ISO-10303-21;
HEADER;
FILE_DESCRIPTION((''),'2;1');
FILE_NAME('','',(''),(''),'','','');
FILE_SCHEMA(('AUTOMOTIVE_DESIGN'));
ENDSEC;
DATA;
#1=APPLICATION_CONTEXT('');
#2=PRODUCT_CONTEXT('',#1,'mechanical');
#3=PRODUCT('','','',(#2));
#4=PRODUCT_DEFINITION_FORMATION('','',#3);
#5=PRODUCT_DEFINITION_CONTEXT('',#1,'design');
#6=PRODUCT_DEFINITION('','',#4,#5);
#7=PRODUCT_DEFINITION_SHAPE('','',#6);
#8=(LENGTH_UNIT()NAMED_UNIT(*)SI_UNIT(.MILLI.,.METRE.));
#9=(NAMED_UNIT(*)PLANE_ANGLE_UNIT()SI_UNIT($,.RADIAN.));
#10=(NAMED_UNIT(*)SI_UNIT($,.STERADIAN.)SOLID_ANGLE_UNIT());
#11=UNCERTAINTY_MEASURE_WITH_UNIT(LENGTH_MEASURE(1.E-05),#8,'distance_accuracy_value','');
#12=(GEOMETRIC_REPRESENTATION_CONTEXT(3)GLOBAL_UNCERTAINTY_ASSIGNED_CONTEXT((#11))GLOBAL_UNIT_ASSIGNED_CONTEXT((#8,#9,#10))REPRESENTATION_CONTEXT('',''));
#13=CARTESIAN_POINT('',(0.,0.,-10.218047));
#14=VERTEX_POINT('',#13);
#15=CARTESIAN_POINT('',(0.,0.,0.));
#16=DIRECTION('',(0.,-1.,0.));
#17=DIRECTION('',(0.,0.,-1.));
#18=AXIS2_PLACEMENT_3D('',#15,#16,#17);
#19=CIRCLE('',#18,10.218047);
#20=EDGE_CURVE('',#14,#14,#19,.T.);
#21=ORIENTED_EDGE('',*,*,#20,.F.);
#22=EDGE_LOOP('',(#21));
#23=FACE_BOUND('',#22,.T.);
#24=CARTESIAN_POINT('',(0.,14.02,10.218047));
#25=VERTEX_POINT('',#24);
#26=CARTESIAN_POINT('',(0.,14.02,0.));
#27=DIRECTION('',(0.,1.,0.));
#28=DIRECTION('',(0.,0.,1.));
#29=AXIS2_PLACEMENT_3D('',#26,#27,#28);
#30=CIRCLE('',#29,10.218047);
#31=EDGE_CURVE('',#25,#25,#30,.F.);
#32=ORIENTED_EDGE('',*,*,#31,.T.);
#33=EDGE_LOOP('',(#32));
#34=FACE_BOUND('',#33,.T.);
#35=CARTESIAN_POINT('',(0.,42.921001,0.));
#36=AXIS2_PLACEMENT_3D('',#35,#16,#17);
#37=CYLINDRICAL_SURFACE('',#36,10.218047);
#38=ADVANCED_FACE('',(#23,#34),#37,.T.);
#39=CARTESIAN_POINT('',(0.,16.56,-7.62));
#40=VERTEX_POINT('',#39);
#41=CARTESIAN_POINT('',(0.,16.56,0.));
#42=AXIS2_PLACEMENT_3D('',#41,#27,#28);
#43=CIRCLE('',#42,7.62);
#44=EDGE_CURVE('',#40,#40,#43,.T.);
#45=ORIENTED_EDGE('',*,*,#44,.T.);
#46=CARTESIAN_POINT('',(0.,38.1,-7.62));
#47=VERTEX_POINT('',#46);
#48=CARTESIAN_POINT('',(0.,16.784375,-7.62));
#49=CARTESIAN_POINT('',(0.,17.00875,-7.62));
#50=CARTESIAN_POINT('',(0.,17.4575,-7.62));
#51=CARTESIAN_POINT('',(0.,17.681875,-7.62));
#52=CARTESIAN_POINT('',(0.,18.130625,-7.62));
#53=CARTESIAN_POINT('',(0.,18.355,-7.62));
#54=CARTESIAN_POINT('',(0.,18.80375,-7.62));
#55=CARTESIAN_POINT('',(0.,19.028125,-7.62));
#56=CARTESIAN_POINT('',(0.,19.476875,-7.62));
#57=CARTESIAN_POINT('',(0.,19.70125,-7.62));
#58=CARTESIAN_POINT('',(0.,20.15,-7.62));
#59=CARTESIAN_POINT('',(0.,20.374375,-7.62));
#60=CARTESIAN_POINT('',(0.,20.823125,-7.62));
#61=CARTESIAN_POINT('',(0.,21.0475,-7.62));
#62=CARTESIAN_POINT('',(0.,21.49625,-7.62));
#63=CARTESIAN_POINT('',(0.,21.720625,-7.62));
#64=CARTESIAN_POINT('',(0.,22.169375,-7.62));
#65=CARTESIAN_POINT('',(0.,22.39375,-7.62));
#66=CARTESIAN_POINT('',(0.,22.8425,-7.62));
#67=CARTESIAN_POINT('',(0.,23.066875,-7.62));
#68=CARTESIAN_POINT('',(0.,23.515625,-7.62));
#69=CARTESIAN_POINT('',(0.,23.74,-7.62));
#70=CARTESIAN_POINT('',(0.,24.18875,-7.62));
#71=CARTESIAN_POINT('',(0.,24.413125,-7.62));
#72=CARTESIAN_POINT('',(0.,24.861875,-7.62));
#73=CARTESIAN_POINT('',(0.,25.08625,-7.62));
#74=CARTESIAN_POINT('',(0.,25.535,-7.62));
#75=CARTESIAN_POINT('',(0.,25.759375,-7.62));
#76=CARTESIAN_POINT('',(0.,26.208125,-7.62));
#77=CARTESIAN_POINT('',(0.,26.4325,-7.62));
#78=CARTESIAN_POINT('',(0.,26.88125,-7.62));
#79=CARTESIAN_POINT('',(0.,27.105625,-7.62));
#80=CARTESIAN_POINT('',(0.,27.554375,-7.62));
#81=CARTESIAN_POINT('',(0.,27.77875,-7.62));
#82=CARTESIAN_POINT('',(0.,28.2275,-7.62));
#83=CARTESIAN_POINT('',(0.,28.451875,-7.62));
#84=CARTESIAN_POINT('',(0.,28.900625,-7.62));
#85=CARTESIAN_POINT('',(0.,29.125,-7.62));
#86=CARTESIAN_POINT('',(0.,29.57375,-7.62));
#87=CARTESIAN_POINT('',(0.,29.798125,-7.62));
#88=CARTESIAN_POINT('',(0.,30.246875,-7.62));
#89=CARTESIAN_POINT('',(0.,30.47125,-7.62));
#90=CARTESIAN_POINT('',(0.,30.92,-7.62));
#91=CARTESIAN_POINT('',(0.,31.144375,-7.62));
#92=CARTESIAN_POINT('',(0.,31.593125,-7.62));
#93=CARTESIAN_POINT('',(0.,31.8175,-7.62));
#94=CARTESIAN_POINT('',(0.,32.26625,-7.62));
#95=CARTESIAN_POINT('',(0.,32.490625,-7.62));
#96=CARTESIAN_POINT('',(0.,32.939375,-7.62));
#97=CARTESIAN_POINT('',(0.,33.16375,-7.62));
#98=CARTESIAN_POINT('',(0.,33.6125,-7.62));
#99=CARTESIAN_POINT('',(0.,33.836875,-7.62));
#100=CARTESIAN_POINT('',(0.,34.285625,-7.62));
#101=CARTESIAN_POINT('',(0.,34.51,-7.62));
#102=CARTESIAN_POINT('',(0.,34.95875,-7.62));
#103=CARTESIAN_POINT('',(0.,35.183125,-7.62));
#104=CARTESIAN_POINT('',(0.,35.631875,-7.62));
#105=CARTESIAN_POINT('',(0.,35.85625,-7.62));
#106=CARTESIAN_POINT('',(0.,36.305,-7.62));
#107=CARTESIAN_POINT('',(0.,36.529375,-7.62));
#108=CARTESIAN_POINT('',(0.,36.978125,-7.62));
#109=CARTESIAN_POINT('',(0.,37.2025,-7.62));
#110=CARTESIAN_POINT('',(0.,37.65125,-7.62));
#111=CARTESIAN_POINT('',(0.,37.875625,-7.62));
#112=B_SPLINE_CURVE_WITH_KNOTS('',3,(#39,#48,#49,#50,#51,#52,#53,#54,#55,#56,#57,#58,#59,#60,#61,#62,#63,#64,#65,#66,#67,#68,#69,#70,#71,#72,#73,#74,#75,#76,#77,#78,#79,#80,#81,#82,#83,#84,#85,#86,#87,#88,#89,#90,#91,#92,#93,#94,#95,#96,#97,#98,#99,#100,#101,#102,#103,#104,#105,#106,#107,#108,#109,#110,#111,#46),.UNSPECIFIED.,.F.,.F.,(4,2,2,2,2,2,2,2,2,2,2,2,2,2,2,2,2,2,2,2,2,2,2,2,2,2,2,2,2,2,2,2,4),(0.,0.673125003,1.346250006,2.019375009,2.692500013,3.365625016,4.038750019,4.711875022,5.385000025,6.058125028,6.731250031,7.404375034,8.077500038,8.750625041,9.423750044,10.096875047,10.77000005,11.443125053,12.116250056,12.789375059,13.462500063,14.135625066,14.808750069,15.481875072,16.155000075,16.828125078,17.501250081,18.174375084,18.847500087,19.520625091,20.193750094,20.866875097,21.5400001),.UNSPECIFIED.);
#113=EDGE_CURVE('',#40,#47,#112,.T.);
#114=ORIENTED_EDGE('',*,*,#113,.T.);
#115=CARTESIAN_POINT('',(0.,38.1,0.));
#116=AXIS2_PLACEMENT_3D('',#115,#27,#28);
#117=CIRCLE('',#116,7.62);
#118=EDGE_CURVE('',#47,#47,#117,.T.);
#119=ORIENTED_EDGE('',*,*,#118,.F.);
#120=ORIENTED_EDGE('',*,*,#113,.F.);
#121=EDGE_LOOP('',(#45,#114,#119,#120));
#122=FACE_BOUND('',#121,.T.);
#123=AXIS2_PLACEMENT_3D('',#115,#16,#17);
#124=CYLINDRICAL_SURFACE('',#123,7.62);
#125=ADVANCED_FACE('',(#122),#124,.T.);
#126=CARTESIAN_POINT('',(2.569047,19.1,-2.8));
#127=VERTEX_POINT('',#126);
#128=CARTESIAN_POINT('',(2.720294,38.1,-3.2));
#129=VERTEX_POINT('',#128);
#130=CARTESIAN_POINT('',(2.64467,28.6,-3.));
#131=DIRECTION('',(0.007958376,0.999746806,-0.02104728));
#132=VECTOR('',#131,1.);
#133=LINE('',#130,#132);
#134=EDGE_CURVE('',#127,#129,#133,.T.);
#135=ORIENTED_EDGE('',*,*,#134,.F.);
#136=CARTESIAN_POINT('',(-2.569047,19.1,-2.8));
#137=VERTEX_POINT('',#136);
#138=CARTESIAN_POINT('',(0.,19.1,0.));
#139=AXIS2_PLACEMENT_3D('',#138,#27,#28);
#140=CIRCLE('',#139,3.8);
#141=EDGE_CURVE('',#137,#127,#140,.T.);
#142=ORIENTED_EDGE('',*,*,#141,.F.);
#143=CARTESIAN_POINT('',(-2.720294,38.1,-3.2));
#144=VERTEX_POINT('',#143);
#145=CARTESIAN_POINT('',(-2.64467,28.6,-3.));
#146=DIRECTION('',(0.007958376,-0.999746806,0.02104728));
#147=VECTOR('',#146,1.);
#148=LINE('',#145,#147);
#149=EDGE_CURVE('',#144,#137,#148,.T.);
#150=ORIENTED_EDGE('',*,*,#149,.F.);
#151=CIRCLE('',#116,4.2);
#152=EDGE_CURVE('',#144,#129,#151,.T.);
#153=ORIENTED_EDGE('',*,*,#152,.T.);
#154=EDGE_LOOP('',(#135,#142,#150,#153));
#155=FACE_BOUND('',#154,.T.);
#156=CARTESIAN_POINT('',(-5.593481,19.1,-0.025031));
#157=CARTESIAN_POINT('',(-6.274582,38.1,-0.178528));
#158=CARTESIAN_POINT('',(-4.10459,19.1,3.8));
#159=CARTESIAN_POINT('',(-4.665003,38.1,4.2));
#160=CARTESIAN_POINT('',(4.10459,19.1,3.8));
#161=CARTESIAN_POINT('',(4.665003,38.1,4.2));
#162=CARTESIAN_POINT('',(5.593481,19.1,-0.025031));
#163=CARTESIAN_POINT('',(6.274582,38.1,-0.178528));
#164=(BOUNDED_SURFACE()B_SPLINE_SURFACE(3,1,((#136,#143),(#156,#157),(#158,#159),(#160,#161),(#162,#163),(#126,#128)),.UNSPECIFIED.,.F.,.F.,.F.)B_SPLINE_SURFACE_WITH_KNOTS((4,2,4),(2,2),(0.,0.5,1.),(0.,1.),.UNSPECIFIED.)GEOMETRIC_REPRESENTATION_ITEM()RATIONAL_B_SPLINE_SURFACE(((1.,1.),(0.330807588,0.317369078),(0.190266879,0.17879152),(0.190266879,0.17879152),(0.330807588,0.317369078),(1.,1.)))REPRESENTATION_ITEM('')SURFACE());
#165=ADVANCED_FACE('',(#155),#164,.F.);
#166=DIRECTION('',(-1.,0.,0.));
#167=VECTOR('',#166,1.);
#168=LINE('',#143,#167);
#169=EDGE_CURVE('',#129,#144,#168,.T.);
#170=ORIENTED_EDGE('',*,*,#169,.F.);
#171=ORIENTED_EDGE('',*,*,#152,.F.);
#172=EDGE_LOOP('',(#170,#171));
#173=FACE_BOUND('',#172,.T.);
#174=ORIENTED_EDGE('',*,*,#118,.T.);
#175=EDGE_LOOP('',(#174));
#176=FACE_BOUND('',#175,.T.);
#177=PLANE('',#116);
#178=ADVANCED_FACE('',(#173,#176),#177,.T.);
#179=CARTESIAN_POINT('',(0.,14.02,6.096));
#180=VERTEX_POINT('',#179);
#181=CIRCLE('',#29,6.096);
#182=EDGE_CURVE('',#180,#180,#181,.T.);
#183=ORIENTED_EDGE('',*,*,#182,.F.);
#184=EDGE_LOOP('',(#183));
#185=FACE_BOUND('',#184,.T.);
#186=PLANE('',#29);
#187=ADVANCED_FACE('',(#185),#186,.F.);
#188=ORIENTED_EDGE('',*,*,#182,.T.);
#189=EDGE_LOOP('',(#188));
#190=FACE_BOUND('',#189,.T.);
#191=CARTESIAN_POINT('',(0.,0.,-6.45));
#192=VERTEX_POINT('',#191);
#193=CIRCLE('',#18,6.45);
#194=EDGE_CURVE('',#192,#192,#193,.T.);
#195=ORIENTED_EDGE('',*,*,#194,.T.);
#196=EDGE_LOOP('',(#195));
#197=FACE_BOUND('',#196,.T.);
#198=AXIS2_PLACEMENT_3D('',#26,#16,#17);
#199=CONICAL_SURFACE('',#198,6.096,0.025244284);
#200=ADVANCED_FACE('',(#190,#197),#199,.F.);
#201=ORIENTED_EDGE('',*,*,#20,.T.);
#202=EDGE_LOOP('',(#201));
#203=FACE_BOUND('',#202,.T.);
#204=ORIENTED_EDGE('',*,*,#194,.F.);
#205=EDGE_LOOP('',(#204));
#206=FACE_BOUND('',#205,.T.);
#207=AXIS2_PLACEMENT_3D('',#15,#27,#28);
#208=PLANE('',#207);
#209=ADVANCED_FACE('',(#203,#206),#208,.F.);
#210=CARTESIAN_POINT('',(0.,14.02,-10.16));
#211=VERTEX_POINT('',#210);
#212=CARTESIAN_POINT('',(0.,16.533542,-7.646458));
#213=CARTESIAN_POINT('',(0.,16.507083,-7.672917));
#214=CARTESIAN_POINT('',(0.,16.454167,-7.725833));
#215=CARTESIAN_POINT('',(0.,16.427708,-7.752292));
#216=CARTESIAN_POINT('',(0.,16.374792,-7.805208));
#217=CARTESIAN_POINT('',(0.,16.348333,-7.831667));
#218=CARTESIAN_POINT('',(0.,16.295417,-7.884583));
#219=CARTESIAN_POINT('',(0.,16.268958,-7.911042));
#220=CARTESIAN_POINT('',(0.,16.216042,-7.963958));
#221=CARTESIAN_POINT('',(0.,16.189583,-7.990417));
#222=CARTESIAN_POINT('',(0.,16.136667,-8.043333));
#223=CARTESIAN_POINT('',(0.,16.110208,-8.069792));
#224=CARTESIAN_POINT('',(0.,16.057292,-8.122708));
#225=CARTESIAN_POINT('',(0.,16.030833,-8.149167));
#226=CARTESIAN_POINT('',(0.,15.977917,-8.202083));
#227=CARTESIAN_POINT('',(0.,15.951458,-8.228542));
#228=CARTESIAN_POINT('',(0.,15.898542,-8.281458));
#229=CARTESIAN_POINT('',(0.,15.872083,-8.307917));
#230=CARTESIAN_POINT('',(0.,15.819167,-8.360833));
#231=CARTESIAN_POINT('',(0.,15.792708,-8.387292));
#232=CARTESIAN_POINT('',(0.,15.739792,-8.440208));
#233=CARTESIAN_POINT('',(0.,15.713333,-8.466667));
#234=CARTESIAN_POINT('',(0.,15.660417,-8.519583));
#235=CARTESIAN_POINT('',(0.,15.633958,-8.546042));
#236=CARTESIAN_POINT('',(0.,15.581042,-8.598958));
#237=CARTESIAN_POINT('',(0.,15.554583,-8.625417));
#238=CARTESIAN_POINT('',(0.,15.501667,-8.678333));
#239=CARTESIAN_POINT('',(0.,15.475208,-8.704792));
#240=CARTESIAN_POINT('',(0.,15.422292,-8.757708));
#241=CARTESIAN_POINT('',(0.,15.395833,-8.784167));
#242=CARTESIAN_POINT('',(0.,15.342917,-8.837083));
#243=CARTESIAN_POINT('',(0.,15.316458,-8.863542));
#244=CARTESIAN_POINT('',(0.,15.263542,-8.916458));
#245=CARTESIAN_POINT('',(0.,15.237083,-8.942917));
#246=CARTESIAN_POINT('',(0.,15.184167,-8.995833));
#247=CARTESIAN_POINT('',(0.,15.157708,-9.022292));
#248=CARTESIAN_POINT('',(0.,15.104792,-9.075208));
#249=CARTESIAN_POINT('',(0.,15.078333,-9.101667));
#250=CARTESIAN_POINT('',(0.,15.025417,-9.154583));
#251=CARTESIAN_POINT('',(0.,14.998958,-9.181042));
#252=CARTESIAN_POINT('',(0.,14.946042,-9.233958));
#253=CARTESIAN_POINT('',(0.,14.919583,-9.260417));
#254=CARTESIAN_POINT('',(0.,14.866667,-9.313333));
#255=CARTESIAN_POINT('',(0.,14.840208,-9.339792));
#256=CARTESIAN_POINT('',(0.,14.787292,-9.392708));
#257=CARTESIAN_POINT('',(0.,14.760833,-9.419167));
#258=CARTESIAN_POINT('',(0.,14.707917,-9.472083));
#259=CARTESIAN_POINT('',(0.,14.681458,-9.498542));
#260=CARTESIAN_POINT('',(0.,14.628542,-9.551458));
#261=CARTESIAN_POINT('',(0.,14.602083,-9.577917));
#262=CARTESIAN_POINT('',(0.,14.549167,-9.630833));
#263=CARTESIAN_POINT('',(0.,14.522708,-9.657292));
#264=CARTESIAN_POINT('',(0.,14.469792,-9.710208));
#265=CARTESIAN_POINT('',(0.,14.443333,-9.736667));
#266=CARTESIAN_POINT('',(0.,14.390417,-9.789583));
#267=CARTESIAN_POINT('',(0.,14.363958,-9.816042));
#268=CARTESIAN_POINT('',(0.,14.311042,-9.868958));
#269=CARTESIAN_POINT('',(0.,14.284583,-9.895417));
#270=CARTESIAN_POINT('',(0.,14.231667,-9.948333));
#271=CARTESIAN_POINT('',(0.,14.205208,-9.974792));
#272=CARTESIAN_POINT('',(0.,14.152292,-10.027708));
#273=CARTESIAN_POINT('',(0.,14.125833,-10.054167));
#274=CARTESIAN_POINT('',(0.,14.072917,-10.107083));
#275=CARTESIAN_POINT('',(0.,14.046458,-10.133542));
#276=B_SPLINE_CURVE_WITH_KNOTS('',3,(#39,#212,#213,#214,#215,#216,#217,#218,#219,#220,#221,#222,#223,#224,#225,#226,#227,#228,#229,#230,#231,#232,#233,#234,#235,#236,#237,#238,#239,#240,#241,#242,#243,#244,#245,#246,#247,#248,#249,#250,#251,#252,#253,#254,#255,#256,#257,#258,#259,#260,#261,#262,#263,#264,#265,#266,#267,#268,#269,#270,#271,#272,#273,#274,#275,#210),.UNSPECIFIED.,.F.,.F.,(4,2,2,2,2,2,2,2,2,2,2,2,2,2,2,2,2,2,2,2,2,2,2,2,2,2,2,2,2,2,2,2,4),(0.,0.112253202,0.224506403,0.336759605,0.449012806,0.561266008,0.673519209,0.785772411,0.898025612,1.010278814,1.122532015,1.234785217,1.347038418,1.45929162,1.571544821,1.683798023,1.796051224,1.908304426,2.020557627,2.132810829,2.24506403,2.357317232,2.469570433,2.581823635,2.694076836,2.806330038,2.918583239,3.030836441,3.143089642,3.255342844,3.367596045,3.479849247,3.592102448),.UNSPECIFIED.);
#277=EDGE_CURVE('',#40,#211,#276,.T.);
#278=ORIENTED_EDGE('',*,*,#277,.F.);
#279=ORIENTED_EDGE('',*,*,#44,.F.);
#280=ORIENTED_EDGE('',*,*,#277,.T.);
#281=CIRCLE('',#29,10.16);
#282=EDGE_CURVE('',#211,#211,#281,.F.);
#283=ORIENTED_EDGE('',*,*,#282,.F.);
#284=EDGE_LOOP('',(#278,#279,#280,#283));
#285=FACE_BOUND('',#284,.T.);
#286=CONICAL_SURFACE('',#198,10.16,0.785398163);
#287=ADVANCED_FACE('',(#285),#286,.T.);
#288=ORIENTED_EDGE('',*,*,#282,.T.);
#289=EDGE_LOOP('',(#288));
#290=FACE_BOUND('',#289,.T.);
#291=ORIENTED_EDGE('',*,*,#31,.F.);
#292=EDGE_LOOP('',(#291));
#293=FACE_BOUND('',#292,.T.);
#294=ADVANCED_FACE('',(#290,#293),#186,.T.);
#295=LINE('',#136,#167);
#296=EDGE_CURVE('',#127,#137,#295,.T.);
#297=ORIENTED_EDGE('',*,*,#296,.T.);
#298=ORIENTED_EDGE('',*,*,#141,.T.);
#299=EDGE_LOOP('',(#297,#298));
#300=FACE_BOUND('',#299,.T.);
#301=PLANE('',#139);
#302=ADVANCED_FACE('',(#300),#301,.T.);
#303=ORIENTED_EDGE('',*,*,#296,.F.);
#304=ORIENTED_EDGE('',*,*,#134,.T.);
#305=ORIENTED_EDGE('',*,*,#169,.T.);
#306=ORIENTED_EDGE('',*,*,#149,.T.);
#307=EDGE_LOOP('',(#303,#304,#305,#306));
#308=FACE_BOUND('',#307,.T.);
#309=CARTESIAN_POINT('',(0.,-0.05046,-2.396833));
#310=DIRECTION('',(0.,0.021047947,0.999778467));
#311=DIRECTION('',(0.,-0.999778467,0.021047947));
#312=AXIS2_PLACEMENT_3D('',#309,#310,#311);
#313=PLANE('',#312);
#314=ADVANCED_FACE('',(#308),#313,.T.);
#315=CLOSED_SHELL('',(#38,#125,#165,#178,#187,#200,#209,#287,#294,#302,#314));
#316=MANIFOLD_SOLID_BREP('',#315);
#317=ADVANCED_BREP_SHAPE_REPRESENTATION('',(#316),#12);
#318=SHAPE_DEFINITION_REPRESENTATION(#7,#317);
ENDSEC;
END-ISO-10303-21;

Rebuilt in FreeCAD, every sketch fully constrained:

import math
import FreeCAD as App
import Part
import Sketcher
from FreeCAD import Vector
Q = App.Units.Quantity


def edges_at(feature, points):
    """Names of the edges that pass closest to the given points."""
    edges = feature.Shape.Edges
    near = lambda p: min(range(len(edges)), key=lambda i: edges[i].distToShape(Part.Vertex(*p))[0])
    return sorted({f"Edge{near(p) + 1}" for p in points})

doc = App.newDocument("Part")
body = doc.addObject("PartDesign::Body", "Body")

sketch1 = body.newObject("Sketcher::SketchObject", "Sketch")
sketch1.AttachmentSupport = (doc.getObject("XZ_Plane"), [""])
sketch1.MapMode = "FlatFace"
sketch1.addGeometry(Part.Circle(Vector(0, 0, 0), Vector(0, 0, 1), 8), False)
sketch1.addConstraint([
    Sketcher.Constraint("Coincident", 0, 3, -1, 1),
    Sketcher.Constraint("Diameter", 0, Q("0.6 in")),
])
pad1 = body.newObject("PartDesign::Pad", "Pad")
pad1.Profile = sketch1
pad1.Length = Q("1.5 in")
pad1.Reversed = True

sketch2 = body.newObject("Sketcher::SketchObject", "Sketch001")
sketch2.AttachmentSupport = (doc.getObject("XZ_Plane"), [""])
sketch2.MapMode = "FlatFace"
sketch2.AttachmentOffset = App.Placement(Vector(0, 0, -19.1), App.Rotation())
sketch2.addGeometry([
    Part.LineSegment(Vector(2.6, -2.8, 0), Vector(-2.6, -2.8, 0)),
    Part.ArcOfCircle(Part.Circle(Vector(0, 0, 0), Vector(0, 0, 1), 3.8), math.radians(-47), math.radians(227)),
], False)
sketch2.addConstraint([
    Sketcher.Constraint("Coincident", 0, 1, 1, 1),
    Sketcher.Constraint("Coincident", 1, 2, 0, 2),
    Sketcher.Constraint("Horizontal", 0),
    Sketcher.Constraint("Coincident", 1, 3, -1, 1),
    Sketcher.Constraint("Radius", 1, 3.8),
    Sketcher.Constraint("DistanceY", 0, 1, -1, 1, 2.8),
])

sketch3 = body.newObject("Sketcher::SketchObject", "Sketch002")
sketch3.AttachmentSupport = (doc.getObject("XZ_Plane"), [""])
sketch3.MapMode = "FlatFace"
sketch3.AttachmentOffset = App.Placement(Vector(0, 0, -1.5 * 25.4), App.Rotation())
sketch3.addGeometry([
    Part.LineSegment(Vector(2.7, -3.2, 0), Vector(-2.7, -3.2, 0)),
    Part.ArcOfCircle(Part.Circle(Vector(0, 0, 0), Vector(0, 0, 1), 4.2), math.radians(-50), math.radians(230)),
], False)
sketch3.addConstraint([
    Sketcher.Constraint("Coincident", 0, 1, 1, 1),
    Sketcher.Constraint("Coincident", 1, 2, 0, 2),
    Sketcher.Constraint("Horizontal", 0),
    Sketcher.Constraint("Coincident", 1, 3, -1, 1),
    Sketcher.Constraint("Radius", 1, 4.2),
    Sketcher.Constraint("DistanceY", 0, 1, -1, 1, 3.2),
])

subtractiveloft = body.newObject("PartDesign::SubtractiveLoft", "SubtractiveLoft")
subtractiveloft.Profile = sketch2
subtractiveloft.Sections = [sketch3]

sketch4 = body.newObject("Sketcher::SketchObject", "Sketch003")
sketch4.AttachmentSupport = (doc.getObject("XZ_Plane"), [""])
sketch4.MapMode = "FlatFace"
sketch4.AttachmentOffset = App.Placement(Vector(0, 0, -14.02), App.Rotation())
sketch4.addGeometry(Part.Circle(Vector(0, 0, 0), Vector(0, 0, 1), 6), False)
sketch4.addConstraint([
    Sketcher.Constraint("Coincident", 0, 3, -1, 1),
    Sketcher.Constraint("Diameter", 0, Q("0.48 in")),
])

sketch5 = body.newObject("Sketcher::SketchObject", "Sketch004")
sketch5.AttachmentSupport = (doc.getObject("XZ_Plane"), [""])
sketch5.MapMode = "FlatFace"
sketch5.addGeometry(Part.Circle(Vector(0, 0, 0), Vector(0, 0, 1), 6), False)
sketch5.addConstraint([
    Sketcher.Constraint("Coincident", 0, 3, -1, 1),
    Sketcher.Constraint("Diameter", 0, 12.9),
])

subtractiveloft2 = body.newObject("PartDesign::SubtractiveLoft", "SubtractiveLoft001")
subtractiveloft2.Profile = sketch4
subtractiveloft2.Sections = [sketch5]

sketch6 = body.newObject("Sketcher::SketchObject", "Sketch005")
sketch6.AttachmentSupport = (doc.getObject("XZ_Plane"), [""])
sketch6.MapMode = "FlatFace"
sketch6.addGeometry([
    Part.Circle(Vector(0, 0, 0), Vector(0, 0, 1), 10),
    Part.Circle(Vector(0, 0, 0), Vector(0, 0, 1), 8),
], False)
sketch6.addConstraint([
    Sketcher.Constraint("Coincident", 0, 3, -1, 1),
    Sketcher.Constraint("Coincident", 1, 3, -1, 1),
    Sketcher.Constraint("Diameter", 1, Q("0.6 in")),
    Sketcher.Constraint("Diameter", 0, 20.436094),
])
pad2 = body.newObject("PartDesign::Pad", "Pad001")
pad2.Profile = sketch6
pad2.Length = 14.02
pad2.Reversed = True
doc.recompute()

chamfer = body.newObject("PartDesign::Chamfer", "Chamfer")
chamfer.Base = (pad2, edges_at(pad2, [(0, 14.02, 7.62)]))
chamfer.Size = Q("0.1 in")

doc.recompute()
